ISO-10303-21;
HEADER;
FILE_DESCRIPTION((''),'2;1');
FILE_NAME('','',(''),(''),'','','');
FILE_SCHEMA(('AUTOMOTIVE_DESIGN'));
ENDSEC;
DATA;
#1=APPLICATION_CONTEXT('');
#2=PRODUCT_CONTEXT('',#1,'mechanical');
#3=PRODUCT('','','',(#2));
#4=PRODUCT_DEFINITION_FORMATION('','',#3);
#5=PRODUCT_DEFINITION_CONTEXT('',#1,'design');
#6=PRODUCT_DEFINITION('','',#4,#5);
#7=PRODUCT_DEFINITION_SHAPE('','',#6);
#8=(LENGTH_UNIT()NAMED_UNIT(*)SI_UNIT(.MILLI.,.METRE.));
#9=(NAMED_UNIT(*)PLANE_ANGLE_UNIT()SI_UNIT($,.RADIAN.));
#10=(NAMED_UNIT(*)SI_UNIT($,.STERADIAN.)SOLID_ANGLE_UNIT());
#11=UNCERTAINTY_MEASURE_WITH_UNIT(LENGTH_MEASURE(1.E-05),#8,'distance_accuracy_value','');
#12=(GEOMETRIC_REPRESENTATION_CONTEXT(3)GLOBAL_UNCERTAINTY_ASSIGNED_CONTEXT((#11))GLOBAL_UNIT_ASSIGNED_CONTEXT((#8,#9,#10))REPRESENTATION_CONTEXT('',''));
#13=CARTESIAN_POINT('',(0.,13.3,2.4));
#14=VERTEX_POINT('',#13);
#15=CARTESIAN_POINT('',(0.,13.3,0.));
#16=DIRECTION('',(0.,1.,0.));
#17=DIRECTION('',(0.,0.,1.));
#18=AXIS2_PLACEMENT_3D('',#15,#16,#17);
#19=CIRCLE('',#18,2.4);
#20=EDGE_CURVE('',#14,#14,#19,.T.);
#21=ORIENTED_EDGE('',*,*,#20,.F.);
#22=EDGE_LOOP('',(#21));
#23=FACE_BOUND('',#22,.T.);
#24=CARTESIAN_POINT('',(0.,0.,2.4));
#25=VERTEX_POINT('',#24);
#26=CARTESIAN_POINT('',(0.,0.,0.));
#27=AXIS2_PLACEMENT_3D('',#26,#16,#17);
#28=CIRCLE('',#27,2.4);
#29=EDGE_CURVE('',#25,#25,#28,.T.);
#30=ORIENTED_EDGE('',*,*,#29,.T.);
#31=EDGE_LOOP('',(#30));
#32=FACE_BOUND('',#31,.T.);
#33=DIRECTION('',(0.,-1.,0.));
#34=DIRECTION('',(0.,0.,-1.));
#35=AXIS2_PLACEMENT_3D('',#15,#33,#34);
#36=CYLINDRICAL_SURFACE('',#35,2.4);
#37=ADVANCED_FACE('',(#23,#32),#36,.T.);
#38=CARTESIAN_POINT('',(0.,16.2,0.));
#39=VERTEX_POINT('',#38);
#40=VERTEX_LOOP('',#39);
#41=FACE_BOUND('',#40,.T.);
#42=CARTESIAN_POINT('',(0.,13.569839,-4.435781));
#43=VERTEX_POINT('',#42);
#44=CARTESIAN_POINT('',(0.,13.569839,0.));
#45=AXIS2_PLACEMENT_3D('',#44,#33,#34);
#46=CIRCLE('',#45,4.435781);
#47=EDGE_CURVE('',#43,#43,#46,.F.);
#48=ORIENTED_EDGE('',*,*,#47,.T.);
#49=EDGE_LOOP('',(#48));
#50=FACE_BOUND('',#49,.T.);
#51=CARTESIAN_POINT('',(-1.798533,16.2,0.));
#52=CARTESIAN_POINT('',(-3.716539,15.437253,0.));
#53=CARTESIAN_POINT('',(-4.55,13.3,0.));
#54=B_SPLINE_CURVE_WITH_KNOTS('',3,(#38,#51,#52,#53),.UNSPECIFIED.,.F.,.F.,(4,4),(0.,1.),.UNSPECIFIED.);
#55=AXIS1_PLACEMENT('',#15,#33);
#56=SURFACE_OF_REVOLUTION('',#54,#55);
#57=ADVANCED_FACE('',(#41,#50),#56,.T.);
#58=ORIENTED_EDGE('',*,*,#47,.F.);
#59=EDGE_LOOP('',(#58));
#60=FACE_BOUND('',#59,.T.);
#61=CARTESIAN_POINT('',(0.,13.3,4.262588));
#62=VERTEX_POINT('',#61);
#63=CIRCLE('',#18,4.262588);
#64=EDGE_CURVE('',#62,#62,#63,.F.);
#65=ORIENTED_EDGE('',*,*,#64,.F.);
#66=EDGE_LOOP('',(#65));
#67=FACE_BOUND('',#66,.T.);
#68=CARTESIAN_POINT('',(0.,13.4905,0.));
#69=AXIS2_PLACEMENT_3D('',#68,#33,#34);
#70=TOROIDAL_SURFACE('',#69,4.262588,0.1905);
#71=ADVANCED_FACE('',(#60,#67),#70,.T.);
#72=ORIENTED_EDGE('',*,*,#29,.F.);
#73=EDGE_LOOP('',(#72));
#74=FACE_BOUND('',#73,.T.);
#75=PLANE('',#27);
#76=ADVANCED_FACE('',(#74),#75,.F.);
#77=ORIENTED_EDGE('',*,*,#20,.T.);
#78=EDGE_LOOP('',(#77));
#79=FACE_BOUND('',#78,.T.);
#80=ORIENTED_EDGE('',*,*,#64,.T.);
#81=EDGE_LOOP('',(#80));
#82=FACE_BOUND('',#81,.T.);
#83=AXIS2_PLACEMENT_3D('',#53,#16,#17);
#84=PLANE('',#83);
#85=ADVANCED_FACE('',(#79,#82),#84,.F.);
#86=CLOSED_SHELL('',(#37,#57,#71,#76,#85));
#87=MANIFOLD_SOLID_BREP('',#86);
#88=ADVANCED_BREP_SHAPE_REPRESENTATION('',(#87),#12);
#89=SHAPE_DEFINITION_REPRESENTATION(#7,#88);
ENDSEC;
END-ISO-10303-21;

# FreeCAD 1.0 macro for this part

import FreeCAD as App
import Part
import Sketcher
Q = App.Units.Quantity


def edges_at(feature, points):
    """Names of the edges that pass closest to the given points."""
    edges = feature.Shape.Edges
    near = lambda p: min(range(len(edges)), key=lambda i: edges[i].distToShape(Part.Vertex(*p))[0])
    return sorted({f"Edge{near(p) + 1}" for p in points})

doc = App.newDocument("Part")
body = doc.addObject("PartDesign::Body", "Body")

# Sketch on XZ plane
sketch1 = doc.addObject("Sketcher::SketchObject", "Sketch")
body.addObject(sketch1)
sketch1.AttachmentSupport = (doc.XZ_Plane, [""])
sketch1.MapMode = "FlatFace"
sketch1.addGeometry(Part.Circle(App.Vector(0, 0, 0), App.Vector(0, 0, 1), 2.4), False)
sketch1.addConstraint([
    Sketcher.Constraint("Coincident", 0, 3, -1, 1),
    Sketcher.Constraint("Diameter", 0, Q("4.8 mm")),
])
pad1 = doc.addObject("PartDesign::Pad", "Pad")
body.addObject(pad1)
pad1.Profile = sketch1
pad1.Length = 13.3
pad1.Reversed = True

# Sketch on XY plane
sketch2 = doc.addObject("Sketcher::SketchObject", "Sketch001")
body.addObject(sketch2)
sketch2.AttachmentSupport = (doc.XY_Plane, [""])
sketch2.MapMode = "FlatFace"
sketch2.addGeometry([
    Part.LineSegment(App.Vector(-4.55, 13.3, 0), App.Vector(0, 13.3, 0)),
    Part.LineSegment(App.Vector(0, 13.3, 0), App.Vector(0, 16.2, 0)),
    Part.BSplineCurve([App.Vector(0, 16.2, 0), App.Vector(-1.798533, 16.2, 0), App.Vector(-3.716539, 15.437253, 0), App.Vector(-4.55, 13.3, 0)], [4, 4], [0, 1], False, 3, [1, 1, 1, 1], False),
], False)
sketch2.addConstraint([
    Sketcher.Constraint("Block", 2),
    Sketcher.Constraint("Coincident", 0, 2, 1, 1),
    Sketcher.Constraint("Coincident", 1, 2, 2, 1),
    Sketcher.Constraint("Coincident", 2, 2, 0, 1),
    Sketcher.Constraint("Horizontal", 0),
    Sketcher.Constraint("Vertical", 1),
])
revolution = doc.addObject("PartDesign::Revolution", "Revolution")
body.addObject(revolution)
revolution.Profile = sketch2
revolution.ReferenceAxis = (sketch2, ["V_Axis"])
revolution.Angle = 360
doc.recompute()

fillet = doc.addObject("PartDesign::Fillet", "Fillet")
body.addObject(fillet)
fillet.Base = (revolution, edges_at(revolution, [(4.55, 13.3, 0)]))
fillet.Radius = 0.1905

doc.recompute()
